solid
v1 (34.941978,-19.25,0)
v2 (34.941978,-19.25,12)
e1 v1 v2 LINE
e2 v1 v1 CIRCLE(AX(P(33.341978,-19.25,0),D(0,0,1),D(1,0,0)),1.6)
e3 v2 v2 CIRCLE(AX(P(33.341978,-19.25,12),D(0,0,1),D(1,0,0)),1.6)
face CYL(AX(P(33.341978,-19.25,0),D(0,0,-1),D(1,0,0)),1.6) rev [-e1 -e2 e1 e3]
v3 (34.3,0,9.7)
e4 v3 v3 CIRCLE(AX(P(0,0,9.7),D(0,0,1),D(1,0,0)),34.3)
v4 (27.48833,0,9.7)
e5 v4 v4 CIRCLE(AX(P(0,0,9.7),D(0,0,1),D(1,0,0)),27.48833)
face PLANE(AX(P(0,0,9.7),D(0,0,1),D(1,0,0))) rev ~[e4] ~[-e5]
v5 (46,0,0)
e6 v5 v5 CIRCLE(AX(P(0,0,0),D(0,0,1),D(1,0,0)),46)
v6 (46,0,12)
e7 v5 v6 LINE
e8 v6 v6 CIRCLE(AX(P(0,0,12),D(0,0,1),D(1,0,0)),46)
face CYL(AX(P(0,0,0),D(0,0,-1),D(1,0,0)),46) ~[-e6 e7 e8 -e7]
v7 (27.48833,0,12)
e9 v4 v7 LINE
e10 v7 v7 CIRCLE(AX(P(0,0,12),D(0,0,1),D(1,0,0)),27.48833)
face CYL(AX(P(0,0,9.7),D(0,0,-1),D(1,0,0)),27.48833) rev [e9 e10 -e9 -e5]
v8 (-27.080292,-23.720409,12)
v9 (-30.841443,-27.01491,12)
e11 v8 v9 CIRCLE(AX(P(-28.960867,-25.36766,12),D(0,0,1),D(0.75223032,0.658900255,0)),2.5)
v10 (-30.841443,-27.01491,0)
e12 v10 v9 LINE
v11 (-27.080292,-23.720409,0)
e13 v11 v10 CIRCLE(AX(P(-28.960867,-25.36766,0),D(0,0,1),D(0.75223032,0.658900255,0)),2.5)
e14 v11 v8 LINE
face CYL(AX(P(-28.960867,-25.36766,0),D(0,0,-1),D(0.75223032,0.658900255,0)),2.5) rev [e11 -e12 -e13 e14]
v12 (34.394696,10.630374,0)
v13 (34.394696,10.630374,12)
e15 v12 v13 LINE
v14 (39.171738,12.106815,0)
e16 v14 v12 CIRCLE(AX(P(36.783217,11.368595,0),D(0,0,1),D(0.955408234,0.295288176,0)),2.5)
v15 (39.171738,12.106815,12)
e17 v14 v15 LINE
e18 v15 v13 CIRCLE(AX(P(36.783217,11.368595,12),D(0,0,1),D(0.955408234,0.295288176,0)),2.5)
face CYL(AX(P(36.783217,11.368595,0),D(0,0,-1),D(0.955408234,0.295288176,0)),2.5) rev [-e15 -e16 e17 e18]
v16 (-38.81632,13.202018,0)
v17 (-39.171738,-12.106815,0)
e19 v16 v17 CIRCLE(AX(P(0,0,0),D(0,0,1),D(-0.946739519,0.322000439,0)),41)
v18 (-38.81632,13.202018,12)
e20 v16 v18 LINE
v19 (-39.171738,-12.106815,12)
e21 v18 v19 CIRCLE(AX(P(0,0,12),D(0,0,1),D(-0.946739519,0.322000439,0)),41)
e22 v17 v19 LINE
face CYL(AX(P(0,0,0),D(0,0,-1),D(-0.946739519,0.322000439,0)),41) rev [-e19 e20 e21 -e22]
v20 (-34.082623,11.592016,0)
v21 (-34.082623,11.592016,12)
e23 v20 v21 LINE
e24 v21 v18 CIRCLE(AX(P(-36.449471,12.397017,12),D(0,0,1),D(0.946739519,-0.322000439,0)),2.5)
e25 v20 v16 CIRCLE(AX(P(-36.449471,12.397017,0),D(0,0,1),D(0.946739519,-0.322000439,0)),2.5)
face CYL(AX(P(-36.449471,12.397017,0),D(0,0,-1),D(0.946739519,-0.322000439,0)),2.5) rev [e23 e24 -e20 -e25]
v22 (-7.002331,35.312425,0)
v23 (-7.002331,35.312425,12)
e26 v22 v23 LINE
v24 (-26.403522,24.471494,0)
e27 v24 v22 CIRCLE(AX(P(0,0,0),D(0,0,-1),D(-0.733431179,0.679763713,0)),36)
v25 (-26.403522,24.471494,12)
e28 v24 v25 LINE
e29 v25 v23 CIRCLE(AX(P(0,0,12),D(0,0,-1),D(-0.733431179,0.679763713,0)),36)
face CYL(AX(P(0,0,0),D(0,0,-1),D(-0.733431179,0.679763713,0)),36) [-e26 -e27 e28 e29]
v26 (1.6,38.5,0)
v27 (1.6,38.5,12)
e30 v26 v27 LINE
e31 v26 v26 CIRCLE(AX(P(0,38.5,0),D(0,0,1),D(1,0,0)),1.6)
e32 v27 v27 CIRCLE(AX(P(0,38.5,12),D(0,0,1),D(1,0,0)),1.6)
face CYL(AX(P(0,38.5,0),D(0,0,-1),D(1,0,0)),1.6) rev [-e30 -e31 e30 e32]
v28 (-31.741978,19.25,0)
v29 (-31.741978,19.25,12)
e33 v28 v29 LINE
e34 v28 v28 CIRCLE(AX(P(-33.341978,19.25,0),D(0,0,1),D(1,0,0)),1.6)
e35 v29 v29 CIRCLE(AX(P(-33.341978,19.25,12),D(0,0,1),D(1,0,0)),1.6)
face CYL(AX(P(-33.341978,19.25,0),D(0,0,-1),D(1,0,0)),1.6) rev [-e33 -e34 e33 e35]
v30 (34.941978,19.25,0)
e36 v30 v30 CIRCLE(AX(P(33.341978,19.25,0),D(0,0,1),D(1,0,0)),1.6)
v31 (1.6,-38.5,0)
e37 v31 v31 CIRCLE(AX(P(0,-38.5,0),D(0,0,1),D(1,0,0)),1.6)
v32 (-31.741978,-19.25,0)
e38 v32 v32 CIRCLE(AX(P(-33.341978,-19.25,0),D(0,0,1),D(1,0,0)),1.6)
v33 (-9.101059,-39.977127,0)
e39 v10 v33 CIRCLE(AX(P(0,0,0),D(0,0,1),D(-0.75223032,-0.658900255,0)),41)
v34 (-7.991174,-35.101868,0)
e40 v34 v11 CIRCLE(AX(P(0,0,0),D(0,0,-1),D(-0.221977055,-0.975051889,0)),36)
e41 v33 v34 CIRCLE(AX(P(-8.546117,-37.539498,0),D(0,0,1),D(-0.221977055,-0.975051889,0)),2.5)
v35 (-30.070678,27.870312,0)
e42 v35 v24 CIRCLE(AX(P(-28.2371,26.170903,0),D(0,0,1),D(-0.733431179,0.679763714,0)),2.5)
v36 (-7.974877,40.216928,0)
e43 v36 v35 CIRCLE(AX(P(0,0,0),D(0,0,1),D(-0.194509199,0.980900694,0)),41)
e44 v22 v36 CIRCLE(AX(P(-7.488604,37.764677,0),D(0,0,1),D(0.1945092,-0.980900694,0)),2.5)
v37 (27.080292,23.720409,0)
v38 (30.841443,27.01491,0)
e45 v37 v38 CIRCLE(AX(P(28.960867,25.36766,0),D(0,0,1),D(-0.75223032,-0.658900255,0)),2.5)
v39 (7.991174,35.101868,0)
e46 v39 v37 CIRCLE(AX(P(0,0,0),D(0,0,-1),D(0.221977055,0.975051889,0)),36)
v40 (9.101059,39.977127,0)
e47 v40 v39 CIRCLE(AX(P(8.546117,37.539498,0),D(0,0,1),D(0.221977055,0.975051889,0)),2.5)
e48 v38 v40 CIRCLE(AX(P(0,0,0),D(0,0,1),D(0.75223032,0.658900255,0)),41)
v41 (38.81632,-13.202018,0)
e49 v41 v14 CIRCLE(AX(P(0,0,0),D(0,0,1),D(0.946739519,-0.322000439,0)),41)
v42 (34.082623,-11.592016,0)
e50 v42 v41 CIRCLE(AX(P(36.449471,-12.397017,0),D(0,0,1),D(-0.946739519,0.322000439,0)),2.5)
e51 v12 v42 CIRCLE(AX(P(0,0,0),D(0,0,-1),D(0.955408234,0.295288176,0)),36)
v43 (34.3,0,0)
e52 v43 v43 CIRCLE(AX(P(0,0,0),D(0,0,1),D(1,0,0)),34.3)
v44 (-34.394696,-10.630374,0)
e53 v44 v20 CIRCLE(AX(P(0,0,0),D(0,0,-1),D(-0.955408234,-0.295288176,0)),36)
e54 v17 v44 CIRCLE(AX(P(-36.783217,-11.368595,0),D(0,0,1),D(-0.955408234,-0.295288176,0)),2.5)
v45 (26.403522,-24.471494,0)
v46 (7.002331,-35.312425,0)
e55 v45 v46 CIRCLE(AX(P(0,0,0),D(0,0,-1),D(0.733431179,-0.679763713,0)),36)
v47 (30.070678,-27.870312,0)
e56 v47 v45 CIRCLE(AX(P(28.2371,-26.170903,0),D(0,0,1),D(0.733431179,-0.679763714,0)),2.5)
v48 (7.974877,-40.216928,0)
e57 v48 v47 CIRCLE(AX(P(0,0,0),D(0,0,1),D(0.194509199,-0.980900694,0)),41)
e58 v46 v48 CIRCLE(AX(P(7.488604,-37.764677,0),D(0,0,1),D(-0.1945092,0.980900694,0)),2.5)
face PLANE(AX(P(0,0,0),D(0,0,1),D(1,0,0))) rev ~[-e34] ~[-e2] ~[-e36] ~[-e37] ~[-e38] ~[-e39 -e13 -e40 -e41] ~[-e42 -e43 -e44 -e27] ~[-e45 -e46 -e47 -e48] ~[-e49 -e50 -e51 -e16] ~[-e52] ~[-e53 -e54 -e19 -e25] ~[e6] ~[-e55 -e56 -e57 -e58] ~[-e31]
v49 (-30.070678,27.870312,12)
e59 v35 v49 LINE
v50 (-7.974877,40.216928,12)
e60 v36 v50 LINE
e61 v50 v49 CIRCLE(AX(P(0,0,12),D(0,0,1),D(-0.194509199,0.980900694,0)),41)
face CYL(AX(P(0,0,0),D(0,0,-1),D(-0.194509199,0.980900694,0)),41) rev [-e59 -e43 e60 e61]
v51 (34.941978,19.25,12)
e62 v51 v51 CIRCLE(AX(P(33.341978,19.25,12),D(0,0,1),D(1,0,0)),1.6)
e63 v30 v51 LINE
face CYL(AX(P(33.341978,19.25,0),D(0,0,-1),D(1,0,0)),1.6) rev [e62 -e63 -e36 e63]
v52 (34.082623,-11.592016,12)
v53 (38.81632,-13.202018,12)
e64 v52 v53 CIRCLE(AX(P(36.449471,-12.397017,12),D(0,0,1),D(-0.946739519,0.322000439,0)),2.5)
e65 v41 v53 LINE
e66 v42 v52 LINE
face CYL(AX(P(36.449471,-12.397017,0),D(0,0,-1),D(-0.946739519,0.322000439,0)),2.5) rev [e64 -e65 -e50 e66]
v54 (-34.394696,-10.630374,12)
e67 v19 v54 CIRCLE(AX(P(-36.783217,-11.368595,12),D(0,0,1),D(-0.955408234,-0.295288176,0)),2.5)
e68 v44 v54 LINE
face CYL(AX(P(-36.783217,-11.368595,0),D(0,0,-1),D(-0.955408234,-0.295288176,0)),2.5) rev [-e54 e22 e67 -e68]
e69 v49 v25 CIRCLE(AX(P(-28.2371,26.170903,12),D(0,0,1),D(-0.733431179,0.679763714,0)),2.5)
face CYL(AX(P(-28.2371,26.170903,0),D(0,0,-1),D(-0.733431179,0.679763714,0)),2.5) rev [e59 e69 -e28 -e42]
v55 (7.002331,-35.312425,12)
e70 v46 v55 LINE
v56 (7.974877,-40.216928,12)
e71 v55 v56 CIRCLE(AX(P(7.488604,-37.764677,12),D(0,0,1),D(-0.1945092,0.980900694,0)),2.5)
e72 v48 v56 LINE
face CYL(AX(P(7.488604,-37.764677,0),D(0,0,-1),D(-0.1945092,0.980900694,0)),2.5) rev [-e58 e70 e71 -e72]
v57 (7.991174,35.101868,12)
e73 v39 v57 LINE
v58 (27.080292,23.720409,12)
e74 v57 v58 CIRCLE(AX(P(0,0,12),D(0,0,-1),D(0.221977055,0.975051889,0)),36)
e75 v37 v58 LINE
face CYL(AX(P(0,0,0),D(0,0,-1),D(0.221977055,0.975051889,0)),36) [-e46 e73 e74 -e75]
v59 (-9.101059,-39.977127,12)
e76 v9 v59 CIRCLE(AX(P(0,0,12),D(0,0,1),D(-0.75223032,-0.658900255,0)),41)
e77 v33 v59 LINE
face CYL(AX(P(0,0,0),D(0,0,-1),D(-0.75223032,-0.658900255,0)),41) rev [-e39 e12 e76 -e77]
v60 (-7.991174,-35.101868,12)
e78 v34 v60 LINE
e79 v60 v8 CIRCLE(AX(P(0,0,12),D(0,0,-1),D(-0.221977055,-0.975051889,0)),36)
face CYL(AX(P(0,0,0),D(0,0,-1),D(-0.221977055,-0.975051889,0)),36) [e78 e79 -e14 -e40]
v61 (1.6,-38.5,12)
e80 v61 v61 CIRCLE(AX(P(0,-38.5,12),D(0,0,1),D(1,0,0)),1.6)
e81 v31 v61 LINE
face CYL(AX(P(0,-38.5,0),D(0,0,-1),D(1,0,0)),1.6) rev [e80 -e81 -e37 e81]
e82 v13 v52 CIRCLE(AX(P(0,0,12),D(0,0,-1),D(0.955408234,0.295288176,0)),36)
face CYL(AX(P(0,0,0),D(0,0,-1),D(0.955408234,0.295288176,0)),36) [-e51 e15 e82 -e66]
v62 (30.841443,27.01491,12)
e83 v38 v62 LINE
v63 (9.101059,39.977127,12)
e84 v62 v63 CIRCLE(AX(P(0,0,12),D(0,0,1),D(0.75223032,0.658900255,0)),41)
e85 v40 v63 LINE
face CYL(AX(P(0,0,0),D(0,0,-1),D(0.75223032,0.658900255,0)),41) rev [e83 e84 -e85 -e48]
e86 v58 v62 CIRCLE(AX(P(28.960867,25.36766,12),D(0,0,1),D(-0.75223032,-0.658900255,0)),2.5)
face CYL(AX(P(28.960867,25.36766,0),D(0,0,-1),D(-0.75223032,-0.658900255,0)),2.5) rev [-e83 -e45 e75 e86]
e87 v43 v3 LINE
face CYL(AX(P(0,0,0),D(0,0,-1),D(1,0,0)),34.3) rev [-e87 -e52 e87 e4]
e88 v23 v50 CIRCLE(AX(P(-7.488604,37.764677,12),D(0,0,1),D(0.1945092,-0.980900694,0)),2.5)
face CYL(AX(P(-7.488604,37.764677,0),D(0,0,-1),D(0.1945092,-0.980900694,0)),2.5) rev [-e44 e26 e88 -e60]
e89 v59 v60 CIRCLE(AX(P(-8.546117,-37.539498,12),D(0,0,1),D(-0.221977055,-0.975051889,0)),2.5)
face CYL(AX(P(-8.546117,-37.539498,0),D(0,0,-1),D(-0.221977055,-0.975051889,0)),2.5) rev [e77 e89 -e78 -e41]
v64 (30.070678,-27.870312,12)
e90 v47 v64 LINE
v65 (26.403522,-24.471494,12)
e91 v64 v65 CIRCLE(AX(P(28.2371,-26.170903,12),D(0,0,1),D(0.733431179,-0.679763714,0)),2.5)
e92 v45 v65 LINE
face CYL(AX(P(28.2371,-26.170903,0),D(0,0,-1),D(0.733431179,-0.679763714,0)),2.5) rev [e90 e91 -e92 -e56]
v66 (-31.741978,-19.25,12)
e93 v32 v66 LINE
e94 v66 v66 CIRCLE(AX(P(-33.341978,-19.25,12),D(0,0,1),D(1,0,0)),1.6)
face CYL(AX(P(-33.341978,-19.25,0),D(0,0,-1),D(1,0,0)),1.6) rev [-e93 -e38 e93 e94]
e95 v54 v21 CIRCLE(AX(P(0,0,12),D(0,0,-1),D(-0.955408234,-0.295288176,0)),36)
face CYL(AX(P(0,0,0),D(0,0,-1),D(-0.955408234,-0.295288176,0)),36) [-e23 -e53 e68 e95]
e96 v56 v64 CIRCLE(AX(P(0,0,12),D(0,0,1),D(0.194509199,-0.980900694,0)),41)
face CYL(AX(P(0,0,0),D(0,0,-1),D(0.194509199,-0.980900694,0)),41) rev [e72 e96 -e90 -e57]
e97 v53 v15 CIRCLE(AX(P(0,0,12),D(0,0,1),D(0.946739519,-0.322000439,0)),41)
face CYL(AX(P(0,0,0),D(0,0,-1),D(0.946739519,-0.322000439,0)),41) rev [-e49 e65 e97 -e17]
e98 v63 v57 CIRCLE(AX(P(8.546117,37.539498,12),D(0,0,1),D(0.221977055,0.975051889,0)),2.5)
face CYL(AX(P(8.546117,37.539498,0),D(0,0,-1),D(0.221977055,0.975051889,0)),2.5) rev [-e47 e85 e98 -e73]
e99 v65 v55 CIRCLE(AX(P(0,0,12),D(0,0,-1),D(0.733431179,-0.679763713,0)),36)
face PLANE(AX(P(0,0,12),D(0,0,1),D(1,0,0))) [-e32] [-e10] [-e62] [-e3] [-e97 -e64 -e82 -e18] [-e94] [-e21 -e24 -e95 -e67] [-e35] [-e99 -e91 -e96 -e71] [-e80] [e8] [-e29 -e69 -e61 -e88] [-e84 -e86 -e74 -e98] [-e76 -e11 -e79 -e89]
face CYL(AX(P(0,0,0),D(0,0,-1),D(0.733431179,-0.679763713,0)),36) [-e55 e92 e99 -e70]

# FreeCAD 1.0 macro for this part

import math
import FreeCAD as App
import Part
import Sketcher
Q = App.Units.Quantity

doc = App.newDocument("Part")
body = doc.addObject("PartDesign::Body", "Body")

sketch1 = body.newObject("Sketcher::SketchObject", "Sketch")
sketch1.AttachmentSupport = (doc.getObject("XY_Plane"), [""])
sketch1.MapMode = "FlatFace"
sketch1.addGeometry(Part.Circle(App.Vector(0, 0, 0), App.Vector(0, 0, 1), 46), False)
sketch1.addGeometry(Part.ArcOfCircle(Part.Circle(App.Vector(0, 0, 0), App.Vector(0, 0, 1), 41), math.radians(-138.783946), math.radians(-102.825182)), False)
sketch1.addGeometry(Part.ArcOfCircle(Part.Circle(App.Vector(-28.960867, -25.36766, 0), App.Vector(0, 0, 1), 2.5), math.radians(41.216054), math.radians(221.216054)), False)
sketch1.addGeometry(Part.ArcOfCircle(Part.Circle(App.Vector(0, 0, 0), App.Vector(0, 0, 1), 36), math.radians(-138.783946), math.radians(-102.825182)), False)
sketch1.addGeometry(Part.ArcOfCircle(Part.Circle(App.Vector(-8.546117, -37.539498, 0), App.Vector(0, 0, 1), 2.5), math.radians(-102.825182), math.radians(77.174818)), False)
sketch1.addGeometry(Part.Circle(App.Vector(0, -38.5, 0), App.Vector(0, 0, 1), 1.6), False)
sketch1.addGeometry(Part.Circle(App.Vector(-33.341978, -19.25, 0), App.Vector(0, 0, 1), 1.6), False)
sketch1.addGeometry(Part.ArcOfCircle(Part.Circle(App.Vector(0, 0, 0), App.Vector(0, 0, 1), 41), math.radians(-78.783946), math.radians(-42.825182)), False)
sketch1.addGeometry(Part.ArcOfCircle(Part.Circle(App.Vector(7.488604, -37.764677, 0), App.Vector(0, 0, 1), 2.5), math.radians(101.216054), math.radians(281.216054)), False)
sketch1.addGeometry(Part.ArcOfCircle(Part.Circle(App.Vector(0, 0, 0), App.Vector(0, 0, 1), 36), math.radians(-78.783946), math.radians(-42.825182)), False)
sketch1.addGeometry(Part.ArcOfCircle(Part.Circle(App.Vector(28.2371, -26.170903, 0), App.Vector(0, 0, 1), 2.5), math.radians(-42.825182), math.radians(137.174818)), False)
sketch1.addGeometry(Part.Circle(App.Vector(33.341978, -19.25, 0), App.Vector(0, 0, 1), 1.6), False)
sketch1.addGeometry(Part.ArcOfCircle(Part.Circle(App.Vector(0, 0, 0), App.Vector(0, 0, 1), 41), math.radians(-18.783946), math.radians(17.174818)), False)
sketch1.addGeometry(Part.ArcOfCircle(Part.Circle(App.Vector(36.449471, -12.397017, 0), App.Vector(0, 0, 1), 2.5), math.radians(161.216054), math.radians(341.216054)), False)
sketch1.addGeometry(Part.ArcOfCircle(Part.Circle(App.Vector(0, 0, 0), App.Vector(0, 0, 1), 36), math.radians(-18.783946), math.radians(17.174818)), False)
sketch1.addGeometry(Part.ArcOfCircle(Part.Circle(App.Vector(36.783217, 11.368595, 0), App.Vector(0, 0, 1), 2.5), math.radians(17.174818), math.radians(197.174818)), False)
sketch1.addGeometry(Part.ArcOfCircle(Part.Circle(App.Vector(0, 0, 0), App.Vector(0, 0, 1), 41), math.radians(161.216054), math.radians(197.174818)), False)
sketch1.addGeometry(Part.ArcOfCircle(Part.Circle(App.Vector(-36.449471, 12.397017, 0), App.Vector(0, 0, 1), 2.5), math.radians(-18.783946), math.radians(161.216054)), False)
sketch1.addGeometry(Part.ArcOfCircle(Part.Circle(App.Vector(0, 0, 0), App.Vector(0, 0, 1), 36), math.radians(161.216054), math.radians(197.174818)), False)
sketch1.addGeometry(Part.ArcOfCircle(Part.Circle(App.Vector(-36.783217, -11.368595, 0), App.Vector(0, 0, 1), 2.5), math.radians(-162.825182), math.radians(17.174818)), False)
sketch1.addGeometry(Part.Circle(App.Vector(-33.341978, 19.25, 0), App.Vector(0, 0, 1), 1.6), False)
sketch1.addGeometry(Part.Circle(App.Vector(0, 0, 0), App.Vector(0, 0, 1), 34.3), False)
sketch1.addGeometry(Part.ArcOfCircle(Part.Circle(App.Vector(0, 0, 0), App.Vector(0, 0, 1), 41), math.radians(101.216054), math.radians(137.174818)), False)
sketch1.addGeometry(Part.ArcOfCircle(Part.Circle(App.Vector(-7.488604, 37.764677, 0), App.Vector(0, 0, 1), 2.5), math.radians(-78.783946), math.radians(101.216054)), False)
sketch1.addGeometry(Part.ArcOfCircle(Part.Circle(App.Vector(0, 0, 0), App.Vector(0, 0, 1), 36), math.radians(101.216054), math.radians(137.174818)), False)
sketch1.addGeometry(Part.ArcOfCircle(Part.Circle(App.Vector(-28.2371, 26.170903, 0), App.Vector(0, 0, 1), 2.5), math.radians(137.174818), math.radians(317.174818)), False)
sketch1.addGeometry(Part.Circle(App.Vector(0, 38.5, 0), App.Vector(0, 0, 1), 1.6), False)
sketch1.addGeometry(Part.Circle(App.Vector(33.341978, 19.25, 0), App.Vector(0, 0, 1), 1.6), False)
sketch1.addGeometry(Part.ArcOfCircle(Part.Circle(App.Vector(0, 0, 0), App.Vector(0, 0, 1), 41), math.radians(41.216054), math.radians(77.174818)), False)
sketch1.addGeometry(Part.ArcOfCircle(Part.Circle(App.Vector(28.960867, 25.36766, 0), App.Vector(0, 0, 1), 2.5), math.radians(-138.783946), math.radians(41.216054)), False)
sketch1.addGeometry(Part.ArcOfCircle(Part.Circle(App.Vector(0, 0, 0), App.Vector(0, 0, 1), 36), math.radians(41.216054), math.radians(77.174818)), False)
sketch1.addGeometry(Part.ArcOfCircle(Part.Circle(App.Vector(8.546117, 37.539498, 0), App.Vector(0, 0, 1), 2.5), math.radians(77.174818), math.radians(257.174818)), False)
sketch1.addConstraint(Sketcher.Constraint("Tangent", 1, 1, 2, 2))
sketch1.addConstraint(Sketcher.Constraint("Tangent", 2, 1, 3, 1))
sketch1.addConstraint(Sketcher.Constraint("Tangent", 3, 2, 4, 2))
sketch1.addConstraint(Sketcher.Constraint("Tangent", 4, 1, 1, 2))
sketch1.addConstraint(Sketcher.Constraint("Tangent", 7, 1, 8, 2))
sketch1.addConstraint(Sketcher.Constraint("Tangent", 8, 1, 9, 1))
sketch1.addConstraint(Sketcher.Constraint("Tangent", 9, 2, 10, 2))
sketch1.addConstraint(Sketcher.Constraint("Tangent", 10, 1, 7, 2))
sketch1.addConstraint(Sketcher.Constraint("Tangent", 12, 1, 13, 2))
sketch1.addConstraint(Sketcher.Constraint("Tangent", 13, 1, 14, 1))
sketch1.addConstraint(Sketcher.Constraint("Tangent", 14, 2, 15, 2))
sketch1.addConstraint(Sketcher.Constraint("Tangent", 15, 1, 12, 2))
sketch1.addConstraint(Sketcher.Constraint("Tangent", 16, 1, 17, 2))
sketch1.addConstraint(Sketcher.Constraint("Tangent", 17, 1, 18, 1))
sketch1.addConstraint(Sketcher.Constraint("Tangent", 18, 2, 19, 2))
sketch1.addConstraint(Sketcher.Constraint("Tangent", 19, 1, 16, 2))
sketch1.addConstraint(Sketcher.Constraint("Tangent", 22, 1, 23, 2))
sketch1.addConstraint(Sketcher.Constraint("Tangent", 23, 1, 24, 1))
sketch1.addConstraint(Sketcher.Constraint("Tangent", 24, 2, 25, 2))
sketch1.addConstraint(Sketcher.Constraint("Tangent", 25, 1, 22, 2))
sketch1.addConstraint(Sketcher.Constraint("Tangent", 28, 1, 29, 2))
sketch1.addConstraint(Sketcher.Constraint("Tangent", 29, 1, 30, 1))
sketch1.addConstraint(Sketcher.Constraint("Tangent", 30, 2, 31, 2))
sketch1.addConstraint(Sketcher.Constraint("Tangent", 31, 1, 28, 2))
sketch1.addConstraint(Sketcher.Constraint("Coincident", 0, 3, -1, 1))
sketch1.addConstraint(Sketcher.Constraint("Coincident", 1, 3, -1, 1))
sketch1.addConstraint(Sketcher.Constraint("Coincident", 3, 3, -1, 1))
sketch1.addConstraint(Sketcher.Constraint("Coincident", 7, 3, -1, 1))
sketch1.addConstraint(Sketcher.Constraint("Coincident", 9, 3, -1, 1))
sketch1.addConstraint(Sketcher.Constraint("Coincident", 12, 3, -1, 1))
sketch1.addConstraint(Sketcher.Constraint("Coincident", 14, 3, -1, 1))
sketch1.addConstraint(Sketcher.Constraint("Coincident", 16, 3, -1, 1))
sketch1.addConstraint(Sketcher.Constraint("Coincident", 18, 3, -1, 1))
sketch1.addConstraint(Sketcher.Constraint("Coincident", 21, 3, -1, 1))
sketch1.addConstraint(Sketcher.Constraint("Coincident", 22, 3, -1, 1))
sketch1.addConstraint(Sketcher.Constraint("Coincident", 24, 3, -1, 1))
sketch1.addConstraint(Sketcher.Constraint("Coincident", 28, 3, -1, 1))
sketch1.addConstraint(Sketcher.Constraint("Coincident", 30, 3, -1, 1))
sketch1.addConstraint(Sketcher.Constraint("Equal", 5, 6))
sketch1.addConstraint(Sketcher.Constraint("Equal", 1, 7))
sketch1.addConstraint(Sketcher.Constraint("Equal", 4, 8))
sketch1.addConstraint(Sketcher.Constraint("Equal", 6, 11))
sketch1.addConstraint(Sketcher.Constraint("Equal", 7, 12))
sketch1.addConstraint(Sketcher.Constraint("Equal", 10, 13))
sketch1.addConstraint(Sketcher.Constraint("Equal", 12, 16))
sketch1.addConstraint(Sketcher.Constraint("Equal", 15, 17))
sketch1.addConstraint(Sketcher.Constraint("Equal", 11, 20))
sketch1.addConstraint(Sketcher.Constraint("Equal", 16, 22))
sketch1.addConstraint(Sketcher.Constraint("Equal", 19, 23))
sketch1.addConstraint(Sketcher.Constraint("Equal", 20, 26))
sketch1.addConstraint(Sketcher.Constraint("Equal", 26, 27))
sketch1.addConstraint(Sketcher.Constraint("Equal", 22, 28))
sketch1.addConstraint(Sketcher.Constraint("Equal", 25, 29))
sketch1.addConstraint(Sketcher.Constraint("Symmetric", 11, 3, 20, 3, -1, 1))
sketch1.addConstraint(Sketcher.Constraint("Symmetric", 5, 3, 26, 3, -1, 1))
sketch1.addConstraint(Sketcher.Constraint("Symmetric", 6, 3, 27, 3, -1, 1))
sketch1.addConstraint(Sketcher.Constraint("Symmetric", 6, 3, 11, 3, -2))
sketch1.addConstraint(Sketcher.Constraint("PointOnObject", 5, 3, -2))
sketch1.addConstraint(Sketcher.Constraint("Diameter", 0, Q("92 mm")))
sketch1.addConstraint(Sketcher.Constraint("Radius", 1, Q("41 mm")))
sketch1.addConstraint(Sketcher.Constraint("Radius", 3, Q("36 mm")))
sketch1.addConstraint(Sketcher.Constraint("Diameter", 5, Q("3.2 mm")))
sketch1.addConstraint(Sketcher.Constraint("Diameter", 21, Q("68.6 mm")))
sketch1.addConstraint(Sketcher.Constraint("DistanceY", 5, 3, -1, 1, Q("38.5 mm")))
sketch1.addConstraint(Sketcher.Constraint("DistanceY", 6, 3, -1, 1, Q("19.25 mm")))
sketch1.addConstraint(Sketcher.Constraint("DistanceY", 13, 3, 13, 1, Q("0.805001 mm")))
sketch1.addConstraint(Sketcher.Constraint("DistanceY", 17, 1, 17, 3, Q("0.805001 mm")))
sketch1.addConstraint(Sketcher.Constraint("DistanceX", -1, 1, 10, 3, Q("28.2371 mm")))
sketch1.addConstraint(Sketcher.Constraint("DistanceX", 25, 3, -1, 1, Q("28.2371 mm")))
sketch1.addConstraint(Sketcher.Constraint("DistanceY", 1, 1, 2, 1, Q("3.294501 mm")))
sketch1.addConstraint(Sketcher.Constraint("DistanceY", 7, 1, 4, 1, Q("0.239801 mm")))
sketch1.addConstraint(Sketcher.Constraint("DistanceX", 10, 1, 11, 3, Q("3.2713 mm")))
sketch1.addConstraint(Sketcher.Constraint("DistanceX", 20, 3, 22, 1, Q("25.367101 mm")))
sketch1.addConstraint(Sketcher.Constraint("DistanceY", 29, 1, 28, 1, Q("3.294501 mm")))
sketch1.addConstraint(Sketcher.Constraint("DistanceY", 3, 2, -1, 1, Q("35.101868 mm")))
sketch1.addConstraint(Sketcher.Constraint("DistanceY", -1, 1, 30, 2, Q("35.101868 mm")))
sketch1.addConstraint(Sketcher.Constraint("DistanceY", 13, 3, 15, 3, Q("23.765612 mm")))
sketch1.addConstraint(Sketcher.Constraint("DistanceX", 19, 3, 6, 3, Q("3.441239 mm")))
pad1 = body.newObject("PartDesign::Pad", "Pad")
pad1.Profile = sketch1
pad1.Length = 12

sketch2 = body.newObject("Sketcher::SketchObject", "Sketch001")
sketch2.AttachmentSupport = (doc.getObject("XY_Plane"), [""])
sketch2.MapMode = "FlatFace"
sketch2.AttachmentOffset = App.Placement(App.Vector(0, 0, 9.7), App.Rotation())
sketch2.addGeometry(Part.Circle(App.Vector(0, 0, 0), App.Vector(0, 0, 1), 34.3), False)
sketch2.addGeometry(Part.Circle(App.Vector(0, 0, 0), App.Vector(0, 0, 1), 27.48833), False)
sketch2.addConstraint(Sketcher.Constraint("Coincident", 0, 3, -1, 1))
sketch2.addConstraint(Sketcher.Constraint("Coincident", 1, 3, -1, 1))
sketch2.addConstraint(Sketcher.Constraint("Diameter", 0, Q("68.6 mm")))
sketch2.addConstraint(Sketcher.Constraint("Diameter", 1, Q("54.976661 mm")))
pad2 = body.newObject("PartDesign::Pad", "Pad001")
pad2.Profile = sketch2
pad2.Length = 2.3

doc.recompute()
